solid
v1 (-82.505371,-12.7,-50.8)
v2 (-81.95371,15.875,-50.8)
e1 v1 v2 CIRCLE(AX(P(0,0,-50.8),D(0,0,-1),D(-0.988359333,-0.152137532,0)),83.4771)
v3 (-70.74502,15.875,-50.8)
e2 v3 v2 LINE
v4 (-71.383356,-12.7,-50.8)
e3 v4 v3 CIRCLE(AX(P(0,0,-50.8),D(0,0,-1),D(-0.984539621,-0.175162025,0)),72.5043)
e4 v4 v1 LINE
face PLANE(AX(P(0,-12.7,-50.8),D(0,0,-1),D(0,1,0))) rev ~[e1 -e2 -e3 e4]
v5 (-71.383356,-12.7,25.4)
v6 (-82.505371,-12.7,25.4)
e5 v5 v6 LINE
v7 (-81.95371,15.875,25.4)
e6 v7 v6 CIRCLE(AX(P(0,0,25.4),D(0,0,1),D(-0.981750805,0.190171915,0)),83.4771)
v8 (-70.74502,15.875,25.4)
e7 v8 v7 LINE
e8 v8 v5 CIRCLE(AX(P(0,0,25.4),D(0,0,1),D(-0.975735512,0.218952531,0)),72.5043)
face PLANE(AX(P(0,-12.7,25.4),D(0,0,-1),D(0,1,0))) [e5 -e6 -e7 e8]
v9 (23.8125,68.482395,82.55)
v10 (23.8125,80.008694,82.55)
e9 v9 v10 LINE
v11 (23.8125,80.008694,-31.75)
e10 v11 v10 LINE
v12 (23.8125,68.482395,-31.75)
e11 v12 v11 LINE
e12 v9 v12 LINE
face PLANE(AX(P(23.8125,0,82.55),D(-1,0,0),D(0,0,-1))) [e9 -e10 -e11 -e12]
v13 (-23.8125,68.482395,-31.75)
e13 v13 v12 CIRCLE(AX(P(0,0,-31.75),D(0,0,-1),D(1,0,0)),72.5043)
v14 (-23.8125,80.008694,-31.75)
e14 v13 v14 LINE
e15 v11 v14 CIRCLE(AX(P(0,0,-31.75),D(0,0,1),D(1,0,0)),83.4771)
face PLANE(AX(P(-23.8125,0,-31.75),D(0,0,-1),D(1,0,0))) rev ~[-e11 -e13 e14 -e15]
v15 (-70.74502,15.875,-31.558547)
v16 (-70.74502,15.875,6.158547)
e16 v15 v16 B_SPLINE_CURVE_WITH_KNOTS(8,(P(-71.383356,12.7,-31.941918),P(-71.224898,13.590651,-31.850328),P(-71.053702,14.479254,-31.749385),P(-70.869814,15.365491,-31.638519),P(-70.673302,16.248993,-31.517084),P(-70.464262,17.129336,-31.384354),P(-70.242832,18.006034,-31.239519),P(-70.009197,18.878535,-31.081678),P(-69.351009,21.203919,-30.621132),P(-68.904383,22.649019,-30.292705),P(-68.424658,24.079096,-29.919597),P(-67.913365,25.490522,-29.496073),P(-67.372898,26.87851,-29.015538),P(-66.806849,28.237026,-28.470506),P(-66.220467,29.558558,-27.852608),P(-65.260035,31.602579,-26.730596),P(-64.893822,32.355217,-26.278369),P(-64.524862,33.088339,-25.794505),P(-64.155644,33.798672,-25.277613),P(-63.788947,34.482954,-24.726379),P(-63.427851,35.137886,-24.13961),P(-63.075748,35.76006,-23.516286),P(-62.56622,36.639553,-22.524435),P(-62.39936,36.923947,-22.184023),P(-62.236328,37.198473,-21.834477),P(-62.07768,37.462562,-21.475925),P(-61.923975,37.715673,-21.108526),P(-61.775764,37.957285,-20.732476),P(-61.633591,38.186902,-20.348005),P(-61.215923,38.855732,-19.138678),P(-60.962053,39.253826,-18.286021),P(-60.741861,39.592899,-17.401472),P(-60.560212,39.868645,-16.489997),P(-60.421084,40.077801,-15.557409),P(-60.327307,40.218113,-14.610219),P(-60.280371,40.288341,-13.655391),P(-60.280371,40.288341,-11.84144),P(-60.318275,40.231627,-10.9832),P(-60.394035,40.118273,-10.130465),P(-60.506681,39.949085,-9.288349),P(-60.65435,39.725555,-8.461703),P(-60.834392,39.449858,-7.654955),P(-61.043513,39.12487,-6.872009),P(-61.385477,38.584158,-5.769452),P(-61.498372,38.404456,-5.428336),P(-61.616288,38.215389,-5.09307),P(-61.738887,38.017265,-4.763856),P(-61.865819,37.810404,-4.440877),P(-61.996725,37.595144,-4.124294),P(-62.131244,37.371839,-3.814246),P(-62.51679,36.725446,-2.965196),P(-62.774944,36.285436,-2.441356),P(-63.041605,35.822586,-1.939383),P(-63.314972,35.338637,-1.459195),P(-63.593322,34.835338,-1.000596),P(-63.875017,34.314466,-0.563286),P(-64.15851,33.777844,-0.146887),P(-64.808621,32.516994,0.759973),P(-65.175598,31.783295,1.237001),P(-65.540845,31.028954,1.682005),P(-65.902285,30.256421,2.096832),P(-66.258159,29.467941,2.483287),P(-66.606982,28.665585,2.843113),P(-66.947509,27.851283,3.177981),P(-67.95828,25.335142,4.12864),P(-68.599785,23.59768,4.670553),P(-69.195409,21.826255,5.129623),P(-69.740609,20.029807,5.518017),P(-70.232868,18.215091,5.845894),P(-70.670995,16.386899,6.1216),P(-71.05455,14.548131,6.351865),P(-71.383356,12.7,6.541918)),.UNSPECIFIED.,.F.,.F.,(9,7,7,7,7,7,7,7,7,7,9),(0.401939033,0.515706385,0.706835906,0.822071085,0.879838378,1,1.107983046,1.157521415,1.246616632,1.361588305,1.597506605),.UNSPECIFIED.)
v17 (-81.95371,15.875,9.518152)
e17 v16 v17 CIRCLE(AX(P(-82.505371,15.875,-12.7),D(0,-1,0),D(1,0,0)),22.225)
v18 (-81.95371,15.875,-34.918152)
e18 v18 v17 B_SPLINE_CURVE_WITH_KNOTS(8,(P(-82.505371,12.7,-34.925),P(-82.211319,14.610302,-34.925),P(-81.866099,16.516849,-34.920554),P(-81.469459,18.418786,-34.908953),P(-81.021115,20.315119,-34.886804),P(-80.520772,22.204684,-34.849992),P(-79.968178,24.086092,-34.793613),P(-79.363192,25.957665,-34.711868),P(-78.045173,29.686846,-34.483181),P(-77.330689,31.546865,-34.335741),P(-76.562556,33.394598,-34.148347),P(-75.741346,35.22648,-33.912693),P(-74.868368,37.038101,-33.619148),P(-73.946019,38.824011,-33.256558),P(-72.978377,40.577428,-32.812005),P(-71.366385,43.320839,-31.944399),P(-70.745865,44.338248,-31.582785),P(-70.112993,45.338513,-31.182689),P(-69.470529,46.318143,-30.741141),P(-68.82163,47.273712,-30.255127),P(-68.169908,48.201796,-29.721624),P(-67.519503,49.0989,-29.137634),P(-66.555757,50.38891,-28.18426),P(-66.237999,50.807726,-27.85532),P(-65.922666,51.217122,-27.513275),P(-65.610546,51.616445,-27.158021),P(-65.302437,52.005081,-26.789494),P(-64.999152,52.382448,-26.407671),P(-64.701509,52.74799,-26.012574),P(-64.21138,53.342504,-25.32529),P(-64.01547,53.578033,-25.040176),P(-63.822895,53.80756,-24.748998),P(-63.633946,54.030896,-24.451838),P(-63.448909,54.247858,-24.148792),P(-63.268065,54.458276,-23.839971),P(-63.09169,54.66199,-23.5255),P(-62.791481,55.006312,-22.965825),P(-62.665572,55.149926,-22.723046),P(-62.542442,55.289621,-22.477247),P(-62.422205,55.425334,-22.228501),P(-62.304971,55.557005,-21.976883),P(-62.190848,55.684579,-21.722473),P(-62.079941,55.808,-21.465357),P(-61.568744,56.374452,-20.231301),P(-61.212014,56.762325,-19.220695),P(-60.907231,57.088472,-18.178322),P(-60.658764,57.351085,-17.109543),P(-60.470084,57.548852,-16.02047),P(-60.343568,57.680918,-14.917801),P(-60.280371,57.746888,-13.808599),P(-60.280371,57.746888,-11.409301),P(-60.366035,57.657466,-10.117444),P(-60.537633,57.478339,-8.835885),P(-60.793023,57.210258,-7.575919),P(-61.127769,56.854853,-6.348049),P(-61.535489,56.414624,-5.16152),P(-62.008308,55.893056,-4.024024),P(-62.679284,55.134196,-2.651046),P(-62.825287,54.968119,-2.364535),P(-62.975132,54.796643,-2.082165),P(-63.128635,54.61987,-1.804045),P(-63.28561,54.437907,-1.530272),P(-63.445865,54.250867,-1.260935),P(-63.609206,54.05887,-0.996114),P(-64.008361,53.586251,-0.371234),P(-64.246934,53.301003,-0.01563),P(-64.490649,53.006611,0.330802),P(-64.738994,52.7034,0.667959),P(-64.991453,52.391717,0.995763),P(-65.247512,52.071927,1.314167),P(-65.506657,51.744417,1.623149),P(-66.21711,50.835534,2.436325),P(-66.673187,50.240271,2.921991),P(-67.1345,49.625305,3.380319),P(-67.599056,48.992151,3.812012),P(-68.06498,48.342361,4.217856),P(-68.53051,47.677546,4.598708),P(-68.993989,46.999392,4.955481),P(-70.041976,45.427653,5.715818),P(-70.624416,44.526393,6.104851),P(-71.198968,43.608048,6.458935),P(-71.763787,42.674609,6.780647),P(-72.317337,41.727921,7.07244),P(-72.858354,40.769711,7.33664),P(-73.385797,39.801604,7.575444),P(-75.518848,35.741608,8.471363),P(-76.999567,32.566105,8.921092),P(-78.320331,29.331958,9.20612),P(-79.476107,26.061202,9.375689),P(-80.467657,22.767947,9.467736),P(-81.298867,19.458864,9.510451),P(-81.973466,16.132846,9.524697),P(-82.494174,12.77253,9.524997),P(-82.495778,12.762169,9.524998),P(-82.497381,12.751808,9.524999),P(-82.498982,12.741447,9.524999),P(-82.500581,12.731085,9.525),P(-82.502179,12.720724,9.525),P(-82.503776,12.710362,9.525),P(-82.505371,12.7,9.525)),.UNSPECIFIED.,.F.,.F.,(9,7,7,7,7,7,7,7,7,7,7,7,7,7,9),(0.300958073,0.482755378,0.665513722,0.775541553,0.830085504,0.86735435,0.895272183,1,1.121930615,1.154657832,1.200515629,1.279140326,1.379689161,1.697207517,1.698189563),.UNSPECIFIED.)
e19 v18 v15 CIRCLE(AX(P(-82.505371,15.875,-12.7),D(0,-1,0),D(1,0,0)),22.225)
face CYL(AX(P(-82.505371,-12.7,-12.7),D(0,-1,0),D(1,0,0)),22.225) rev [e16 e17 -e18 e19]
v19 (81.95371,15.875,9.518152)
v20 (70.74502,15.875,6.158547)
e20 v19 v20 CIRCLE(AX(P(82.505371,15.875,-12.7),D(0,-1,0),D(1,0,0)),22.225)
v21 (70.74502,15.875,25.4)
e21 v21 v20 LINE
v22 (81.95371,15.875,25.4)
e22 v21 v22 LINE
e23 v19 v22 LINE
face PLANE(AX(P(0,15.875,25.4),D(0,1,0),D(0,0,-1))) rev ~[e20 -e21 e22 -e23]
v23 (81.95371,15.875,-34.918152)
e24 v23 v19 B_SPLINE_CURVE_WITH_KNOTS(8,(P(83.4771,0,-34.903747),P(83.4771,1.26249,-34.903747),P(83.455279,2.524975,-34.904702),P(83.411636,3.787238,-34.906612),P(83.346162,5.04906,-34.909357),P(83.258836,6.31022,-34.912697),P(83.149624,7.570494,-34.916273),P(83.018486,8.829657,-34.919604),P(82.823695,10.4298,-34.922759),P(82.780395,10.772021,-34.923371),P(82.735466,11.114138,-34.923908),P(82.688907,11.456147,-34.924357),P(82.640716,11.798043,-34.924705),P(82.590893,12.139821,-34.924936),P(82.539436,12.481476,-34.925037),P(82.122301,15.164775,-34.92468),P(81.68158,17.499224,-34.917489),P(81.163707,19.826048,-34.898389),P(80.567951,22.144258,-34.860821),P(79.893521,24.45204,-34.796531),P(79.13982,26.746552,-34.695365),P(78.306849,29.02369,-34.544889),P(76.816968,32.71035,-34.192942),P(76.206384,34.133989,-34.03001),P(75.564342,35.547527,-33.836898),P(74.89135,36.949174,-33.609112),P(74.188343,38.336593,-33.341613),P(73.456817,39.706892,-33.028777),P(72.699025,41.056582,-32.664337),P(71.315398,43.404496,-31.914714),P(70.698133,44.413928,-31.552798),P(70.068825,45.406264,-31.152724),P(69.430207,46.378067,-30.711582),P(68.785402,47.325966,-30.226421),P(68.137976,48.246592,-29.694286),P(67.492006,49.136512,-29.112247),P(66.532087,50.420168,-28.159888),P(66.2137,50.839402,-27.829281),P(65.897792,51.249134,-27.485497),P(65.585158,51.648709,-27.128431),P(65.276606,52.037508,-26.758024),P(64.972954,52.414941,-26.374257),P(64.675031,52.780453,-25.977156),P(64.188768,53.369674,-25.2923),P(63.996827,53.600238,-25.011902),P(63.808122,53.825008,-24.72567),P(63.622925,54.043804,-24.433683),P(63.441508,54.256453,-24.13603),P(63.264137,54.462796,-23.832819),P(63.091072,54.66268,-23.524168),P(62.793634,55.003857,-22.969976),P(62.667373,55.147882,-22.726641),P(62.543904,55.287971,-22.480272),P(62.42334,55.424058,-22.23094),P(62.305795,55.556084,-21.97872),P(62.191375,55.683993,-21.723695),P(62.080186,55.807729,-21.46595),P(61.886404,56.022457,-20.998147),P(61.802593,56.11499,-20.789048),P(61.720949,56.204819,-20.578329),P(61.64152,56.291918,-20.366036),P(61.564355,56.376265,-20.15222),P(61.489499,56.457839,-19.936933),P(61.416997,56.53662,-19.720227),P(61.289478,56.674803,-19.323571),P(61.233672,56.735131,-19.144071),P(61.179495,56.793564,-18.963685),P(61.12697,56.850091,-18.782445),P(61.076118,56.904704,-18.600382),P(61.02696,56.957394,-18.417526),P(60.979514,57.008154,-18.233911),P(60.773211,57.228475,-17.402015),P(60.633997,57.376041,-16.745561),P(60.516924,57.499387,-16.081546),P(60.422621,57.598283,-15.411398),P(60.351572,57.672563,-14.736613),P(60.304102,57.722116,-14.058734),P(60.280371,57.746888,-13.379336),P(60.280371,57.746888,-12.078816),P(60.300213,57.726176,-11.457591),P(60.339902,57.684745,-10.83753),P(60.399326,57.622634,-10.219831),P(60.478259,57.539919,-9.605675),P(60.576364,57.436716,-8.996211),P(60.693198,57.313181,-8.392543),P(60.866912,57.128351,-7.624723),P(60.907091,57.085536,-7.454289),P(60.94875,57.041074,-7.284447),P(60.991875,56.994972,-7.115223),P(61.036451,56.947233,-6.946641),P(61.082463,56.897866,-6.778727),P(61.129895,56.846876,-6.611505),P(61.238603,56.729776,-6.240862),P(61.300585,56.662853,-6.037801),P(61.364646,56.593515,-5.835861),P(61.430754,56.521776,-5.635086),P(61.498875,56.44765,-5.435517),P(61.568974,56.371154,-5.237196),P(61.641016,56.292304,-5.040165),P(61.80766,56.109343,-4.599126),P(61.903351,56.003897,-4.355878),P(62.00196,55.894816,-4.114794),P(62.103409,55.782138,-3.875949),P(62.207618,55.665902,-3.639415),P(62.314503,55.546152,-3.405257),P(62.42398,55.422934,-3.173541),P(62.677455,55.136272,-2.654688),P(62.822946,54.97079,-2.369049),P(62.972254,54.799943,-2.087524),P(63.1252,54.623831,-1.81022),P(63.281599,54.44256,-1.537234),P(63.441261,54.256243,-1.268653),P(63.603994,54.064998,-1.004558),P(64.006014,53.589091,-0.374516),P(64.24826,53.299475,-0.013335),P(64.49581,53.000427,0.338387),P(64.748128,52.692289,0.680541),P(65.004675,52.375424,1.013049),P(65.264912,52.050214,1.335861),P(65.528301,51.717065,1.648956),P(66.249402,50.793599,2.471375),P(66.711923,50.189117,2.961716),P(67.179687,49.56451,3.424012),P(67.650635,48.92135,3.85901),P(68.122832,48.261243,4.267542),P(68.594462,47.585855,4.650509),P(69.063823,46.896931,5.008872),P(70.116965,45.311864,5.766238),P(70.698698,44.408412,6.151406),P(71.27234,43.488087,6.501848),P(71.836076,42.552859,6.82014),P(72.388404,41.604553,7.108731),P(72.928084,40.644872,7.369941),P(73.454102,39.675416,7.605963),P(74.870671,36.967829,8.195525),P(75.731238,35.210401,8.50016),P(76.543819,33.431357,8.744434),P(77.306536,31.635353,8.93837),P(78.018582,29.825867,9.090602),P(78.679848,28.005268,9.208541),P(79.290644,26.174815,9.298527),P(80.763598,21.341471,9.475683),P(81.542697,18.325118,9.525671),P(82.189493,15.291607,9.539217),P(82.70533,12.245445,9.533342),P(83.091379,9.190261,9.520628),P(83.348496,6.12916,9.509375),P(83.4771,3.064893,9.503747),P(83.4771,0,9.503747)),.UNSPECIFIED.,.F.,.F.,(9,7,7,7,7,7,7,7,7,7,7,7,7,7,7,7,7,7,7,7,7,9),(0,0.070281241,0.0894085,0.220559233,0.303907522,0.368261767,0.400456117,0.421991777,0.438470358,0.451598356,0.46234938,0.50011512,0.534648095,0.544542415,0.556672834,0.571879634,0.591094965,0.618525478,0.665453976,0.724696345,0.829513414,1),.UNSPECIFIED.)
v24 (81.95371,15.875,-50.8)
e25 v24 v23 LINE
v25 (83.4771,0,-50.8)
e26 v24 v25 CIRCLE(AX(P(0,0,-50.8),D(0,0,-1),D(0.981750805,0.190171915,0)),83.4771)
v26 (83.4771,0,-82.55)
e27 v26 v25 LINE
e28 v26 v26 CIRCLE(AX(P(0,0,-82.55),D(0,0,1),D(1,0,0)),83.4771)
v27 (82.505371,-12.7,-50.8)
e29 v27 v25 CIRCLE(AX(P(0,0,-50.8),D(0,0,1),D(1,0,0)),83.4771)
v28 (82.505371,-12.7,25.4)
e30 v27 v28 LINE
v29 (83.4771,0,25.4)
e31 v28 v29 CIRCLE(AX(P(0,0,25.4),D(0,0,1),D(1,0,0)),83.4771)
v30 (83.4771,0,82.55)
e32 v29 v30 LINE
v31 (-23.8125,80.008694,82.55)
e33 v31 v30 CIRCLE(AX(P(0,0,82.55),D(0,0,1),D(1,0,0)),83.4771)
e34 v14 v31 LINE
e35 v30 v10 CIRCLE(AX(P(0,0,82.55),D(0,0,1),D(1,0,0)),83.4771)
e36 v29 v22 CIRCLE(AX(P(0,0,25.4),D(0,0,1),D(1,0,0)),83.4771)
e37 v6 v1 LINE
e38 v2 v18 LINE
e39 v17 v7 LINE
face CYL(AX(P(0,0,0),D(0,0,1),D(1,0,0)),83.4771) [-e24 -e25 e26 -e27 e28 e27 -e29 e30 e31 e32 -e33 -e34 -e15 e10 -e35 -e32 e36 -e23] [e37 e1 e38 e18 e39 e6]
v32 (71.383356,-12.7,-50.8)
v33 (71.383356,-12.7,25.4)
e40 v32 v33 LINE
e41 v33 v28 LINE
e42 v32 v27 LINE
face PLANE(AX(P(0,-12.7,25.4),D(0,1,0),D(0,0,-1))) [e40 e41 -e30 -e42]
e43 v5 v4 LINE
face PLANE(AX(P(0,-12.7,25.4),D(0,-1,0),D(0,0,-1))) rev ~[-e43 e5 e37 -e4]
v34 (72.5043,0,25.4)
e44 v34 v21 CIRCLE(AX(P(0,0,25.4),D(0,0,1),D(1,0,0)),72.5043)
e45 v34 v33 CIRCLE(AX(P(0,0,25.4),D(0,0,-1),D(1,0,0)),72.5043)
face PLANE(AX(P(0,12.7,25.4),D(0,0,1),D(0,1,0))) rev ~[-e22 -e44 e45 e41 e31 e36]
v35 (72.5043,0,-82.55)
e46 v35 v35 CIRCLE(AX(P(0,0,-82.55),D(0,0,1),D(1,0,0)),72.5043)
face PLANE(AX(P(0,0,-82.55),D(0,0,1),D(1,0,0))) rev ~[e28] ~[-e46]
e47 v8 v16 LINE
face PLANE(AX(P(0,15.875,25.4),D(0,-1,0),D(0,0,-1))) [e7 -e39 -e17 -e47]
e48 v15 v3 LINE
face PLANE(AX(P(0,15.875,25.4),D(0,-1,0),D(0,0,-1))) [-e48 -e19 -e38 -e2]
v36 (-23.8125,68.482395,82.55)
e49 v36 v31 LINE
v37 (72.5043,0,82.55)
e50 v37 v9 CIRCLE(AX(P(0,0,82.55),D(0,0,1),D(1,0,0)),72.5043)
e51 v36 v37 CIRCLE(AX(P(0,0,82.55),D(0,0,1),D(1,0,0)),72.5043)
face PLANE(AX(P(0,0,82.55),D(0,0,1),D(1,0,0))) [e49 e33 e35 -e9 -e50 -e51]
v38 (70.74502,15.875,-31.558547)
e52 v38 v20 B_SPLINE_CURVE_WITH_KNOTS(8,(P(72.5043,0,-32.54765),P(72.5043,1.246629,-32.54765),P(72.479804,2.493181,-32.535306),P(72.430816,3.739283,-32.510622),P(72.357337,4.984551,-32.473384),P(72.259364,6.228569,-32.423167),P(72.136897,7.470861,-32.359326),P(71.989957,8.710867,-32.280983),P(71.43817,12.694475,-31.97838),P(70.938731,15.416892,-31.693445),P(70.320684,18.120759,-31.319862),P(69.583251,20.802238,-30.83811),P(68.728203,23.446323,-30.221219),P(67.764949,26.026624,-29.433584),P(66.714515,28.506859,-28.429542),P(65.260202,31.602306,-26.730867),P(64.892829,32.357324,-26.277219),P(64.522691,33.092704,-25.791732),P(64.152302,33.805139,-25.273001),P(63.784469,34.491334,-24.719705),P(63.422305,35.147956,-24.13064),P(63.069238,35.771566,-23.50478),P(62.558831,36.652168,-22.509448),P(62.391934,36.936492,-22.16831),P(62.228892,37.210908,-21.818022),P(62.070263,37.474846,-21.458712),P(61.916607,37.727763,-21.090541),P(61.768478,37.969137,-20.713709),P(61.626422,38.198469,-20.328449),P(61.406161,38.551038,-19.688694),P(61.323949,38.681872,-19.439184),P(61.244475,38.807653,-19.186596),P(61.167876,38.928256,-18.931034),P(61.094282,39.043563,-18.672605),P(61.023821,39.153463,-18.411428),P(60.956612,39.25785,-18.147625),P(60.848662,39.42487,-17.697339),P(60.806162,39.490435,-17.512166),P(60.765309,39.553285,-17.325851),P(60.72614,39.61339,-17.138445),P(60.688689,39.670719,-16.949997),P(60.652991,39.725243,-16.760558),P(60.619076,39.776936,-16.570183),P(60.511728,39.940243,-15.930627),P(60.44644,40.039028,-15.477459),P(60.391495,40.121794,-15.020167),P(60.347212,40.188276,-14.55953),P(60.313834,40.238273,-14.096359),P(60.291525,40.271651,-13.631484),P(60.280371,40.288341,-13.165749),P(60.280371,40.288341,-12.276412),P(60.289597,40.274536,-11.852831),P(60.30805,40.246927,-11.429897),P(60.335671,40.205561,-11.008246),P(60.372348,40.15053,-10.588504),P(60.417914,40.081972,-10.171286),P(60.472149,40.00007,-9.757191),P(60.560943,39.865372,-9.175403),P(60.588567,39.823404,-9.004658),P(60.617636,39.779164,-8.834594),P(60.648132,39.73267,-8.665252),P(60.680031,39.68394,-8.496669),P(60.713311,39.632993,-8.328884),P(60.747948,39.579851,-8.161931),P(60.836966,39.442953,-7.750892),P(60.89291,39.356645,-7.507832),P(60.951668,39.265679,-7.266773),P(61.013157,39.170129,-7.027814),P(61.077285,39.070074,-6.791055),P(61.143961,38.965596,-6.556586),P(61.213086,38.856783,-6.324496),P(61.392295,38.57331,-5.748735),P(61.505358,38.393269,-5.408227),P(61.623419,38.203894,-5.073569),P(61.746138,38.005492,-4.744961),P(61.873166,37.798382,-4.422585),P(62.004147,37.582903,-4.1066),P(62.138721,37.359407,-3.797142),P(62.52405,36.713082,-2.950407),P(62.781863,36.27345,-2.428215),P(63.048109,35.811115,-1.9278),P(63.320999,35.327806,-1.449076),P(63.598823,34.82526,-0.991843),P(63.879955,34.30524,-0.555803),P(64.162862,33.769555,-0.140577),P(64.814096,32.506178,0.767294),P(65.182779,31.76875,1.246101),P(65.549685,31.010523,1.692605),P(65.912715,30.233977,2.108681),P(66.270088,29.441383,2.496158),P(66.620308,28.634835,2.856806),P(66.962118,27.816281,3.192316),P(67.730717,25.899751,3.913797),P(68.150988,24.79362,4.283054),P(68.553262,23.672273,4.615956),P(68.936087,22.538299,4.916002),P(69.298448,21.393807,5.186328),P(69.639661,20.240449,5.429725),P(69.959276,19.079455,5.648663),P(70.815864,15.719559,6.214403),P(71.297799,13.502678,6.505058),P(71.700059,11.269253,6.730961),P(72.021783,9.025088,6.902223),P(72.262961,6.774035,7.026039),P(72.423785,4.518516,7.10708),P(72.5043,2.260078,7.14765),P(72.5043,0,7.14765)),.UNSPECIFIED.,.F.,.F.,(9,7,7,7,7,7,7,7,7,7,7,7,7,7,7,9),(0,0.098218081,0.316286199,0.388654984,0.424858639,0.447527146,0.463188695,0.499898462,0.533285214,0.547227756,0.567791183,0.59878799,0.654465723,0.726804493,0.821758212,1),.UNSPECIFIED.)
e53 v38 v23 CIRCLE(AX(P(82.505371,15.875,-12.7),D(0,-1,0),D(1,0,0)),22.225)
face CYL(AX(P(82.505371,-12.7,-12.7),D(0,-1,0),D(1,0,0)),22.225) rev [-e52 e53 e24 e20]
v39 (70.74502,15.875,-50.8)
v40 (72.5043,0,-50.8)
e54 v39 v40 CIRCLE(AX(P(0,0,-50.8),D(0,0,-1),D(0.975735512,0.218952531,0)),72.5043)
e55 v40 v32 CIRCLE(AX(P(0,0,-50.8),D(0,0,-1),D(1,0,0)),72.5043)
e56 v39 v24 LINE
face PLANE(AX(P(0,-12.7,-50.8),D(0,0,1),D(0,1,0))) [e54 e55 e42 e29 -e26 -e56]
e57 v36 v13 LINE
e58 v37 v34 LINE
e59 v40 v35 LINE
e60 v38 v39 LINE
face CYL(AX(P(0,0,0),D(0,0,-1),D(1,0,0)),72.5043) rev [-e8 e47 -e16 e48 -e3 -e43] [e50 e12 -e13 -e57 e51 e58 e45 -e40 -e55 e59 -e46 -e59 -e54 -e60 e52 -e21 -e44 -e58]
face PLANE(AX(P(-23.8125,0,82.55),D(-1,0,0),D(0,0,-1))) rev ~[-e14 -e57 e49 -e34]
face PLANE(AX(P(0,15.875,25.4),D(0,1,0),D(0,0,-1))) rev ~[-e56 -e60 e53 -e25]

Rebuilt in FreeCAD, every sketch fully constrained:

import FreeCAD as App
import Part
import Sketcher
Q = App.Units.Quantity


def add_polygon(sketch, points):
    """Adds a closed chain of lines whose ends are joined by coincident constraints."""
    first, n = sketch.GeometryCount, len(points)
    for a, b in zip(points, points[1:] + points[:1]):
        sketch.addGeometry(Part.LineSegment(App.Vector(*a, 0), App.Vector(*b, 0)), False)
    for i in range(n):
        sketch.addConstraint(Sketcher.Constraint("Coincident", first + i, 2, first + (i + 1) % n, 1))

doc = App.newDocument("Part")
body = doc.addObject("PartDesign::Body", "Body")

sketch1 = body.newObject("Sketcher::SketchObject", "Sketch")
sketch1.AttachmentSupport = (doc.getObject("XY_Plane"), [""])
sketch1.MapMode = "FlatFace"
sketch1.addGeometry(Part.Circle(App.Vector(0, 0, 0), App.Vector(0, 0, 1), 83), False)
sketch1.addGeometry(Part.Circle(App.Vector(0, 0, 0), App.Vector(0, 0, 1), 73), False)
sketch1.addConstraint(Sketcher.Constraint("Coincident", 0, 3, -1, 1))
sketch1.addConstraint(Sketcher.Constraint("Coincident", 1, 3, -1, 1))
sketch1.addConstraint(Sketcher.Constraint("Diameter", 0, Q("6.573 in")))
sketch1.addConstraint(Sketcher.Constraint("Diameter", 1, Q("5.709 in")))
pad1 = body.newObject("PartDesign::Pad", "Pad")
pad1.Profile = sketch1
pad1.Length = Q("6.5 in")
pad1.Midplane = True

sketch2 = body.newObject("Sketcher::SketchObject", "Sketch001")
sketch2.AttachmentSupport = (doc.getObject("XZ_Plane"), [""])
sketch2.MapMode = "FlatFace"
add_polygon(sketch2, [(-24, -32), (-24, 83), (24, 83), (24, -32)])
sketch2.addConstraint(Sketcher.Constraint("Vertical", 0))
sketch2.addConstraint(Sketcher.Constraint("Horizontal", 1))
sketch2.addConstraint(Sketcher.Constraint("Vertical", 2))
sketch2.addConstraint(Sketcher.Constraint("Horizontal", 3))
sketch2.addConstraint(Sketcher.Constraint("DistanceY", 0, 1, 0, 2, Q("4.5 in")))
sketch2.addConstraint(Sketcher.Constraint("DistanceX", 1, 1, 1, 2, Q("1.875 in")))
sketch2.addConstraint(Sketcher.Constraint("DistanceY", -1, 1, 0, 2, Q("3.25 in")))
sketch2.addConstraint(Sketcher.Constraint("DistanceX", 0, 2, -1, 1, Q("0.9375 in")))
pocket1 = body.newObject("PartDesign::Pocket", "Pocket")
pocket1.Profile = sketch2
pocket1.Type = "ThroughAll"

sketch3 = body.newObject("Sketcher::SketchObject", "Sketch002")
sketch3.AttachmentSupport = (doc.getObject("YZ_Plane"), [""])
sketch3.MapMode = "FlatFace"
add_polygon(sketch3, [(13, 25), (-13, 25), (-13, -51), (13, -51)])
sketch3.addConstraint(Sketcher.Constraint("Horizontal", 0))
sketch3.addConstraint(Sketcher.Constraint("Vertical", 1))
sketch3.addConstraint(Sketcher.Constraint("Horizontal", 2))
sketch3.addConstraint(Sketcher.Constraint("Vertical", 3))
sketch3.addConstraint(Sketcher.Constraint("DistanceX", 0, 2, 0, 1, Q("1 in")))
sketch3.addConstraint(Sketcher.Constraint("DistanceY", 1, 2, 1, 1, Q("3 in")))
sketch3.addConstraint(Sketcher.Constraint("DistanceY", -1, 1, 0, 2, Q("1 in")))
sketch3.addConstraint(Sketcher.Constraint("DistanceX", 0, 2, -1, 1, Q("0.5 in")))
pocket2 = body.newObject("PartDesign::Pocket", "Pocket001")
pocket2.Profile = sketch3
pocket2.Type = "ThroughAll"
pocket2.Midplane = True

sketch4 = body.newObject("Sketcher::SketchObject", "Sketch003")
sketch4.AttachmentSupport = (doc.getObject("XZ_Plane"), [""])
sketch4.MapMode = "FlatFace"
sketch4.AttachmentOffset = App.Placement(App.Vector(0, 0, 0.5 * 25.4), App.Rotation())
sketch4.addGeometry(Part.Circle(App.Vector(-83, -13, 0), App.Vector(0, 0, 1), 22), False)
sketch4.addGeometry(Part.Circle(App.Vector(83, -13, 0), App.Vector(0, 0, 1), 22), False)
sketch4.addConstraint(Sketcher.Constraint("Equal", 0, 1))
sketch4.addConstraint(Sketcher.Constraint("Symmetric", 0, 3, 1, 3, -2))
sketch4.addConstraint(Sketcher.Constraint("Diameter", 0, Q("1.75 in")))
sketch4.addConstraint(Sketcher.Constraint("DistanceY", 0, 3, -1, 1, Q("0.5 in")))
sketch4.addConstraint(Sketcher.Constraint("DistanceX", 0, 3, -1, 1, Q("82.505371 mm")))
pocket3 = body.newObject("PartDesign::Pocket", "Pocket002")
pocket3.Profile = sketch4
pocket3.Type = "ThroughAll"

sketch5 = body.newObject("Sketcher::SketchObject", "Sketch004")
sketch5.AttachmentSupport = (doc.getObject("YZ_Plane"), [""])
sketch5.MapMode = "FlatFace"
add_polygon(sketch5, [(15.9, 25.4), (12.7, 25.4), (12.7, -50.8), (15.9, -50.8)])
sketch5.addConstraint(Sketcher.Constraint("Horizontal", 0))
sketch5.addConstraint(Sketcher.Constraint("Vertical", 1))
sketch5.addConstraint(Sketcher.Constraint("Horizontal", 2))
sketch5.addConstraint(Sketcher.Constraint("Vertical", 3))
sketch5.addConstraint(Sketcher.Constraint("DistanceY", 1, 2, 1, 1, Q("3 in")))
sketch5.addConstraint(Sketcher.Constraint("DistanceY", -1, 1, 0, 2, Q("1 in")))
sketch5.addConstraint(Sketcher.Constraint("DistanceX", -1, 1, 0, 2, Q("0.5 in")))
sketch5.addConstraint(Sketcher.Constraint("DistanceX", 0, 2, 0, 1, Q("0.125 in")))
pocket4 = body.newObject("PartDesign::Pocket", "Pocket003")
pocket4.Profile = sketch5
pocket4.Type = "ThroughAll"
pocket4.Midplane = True

doc.recompute()
